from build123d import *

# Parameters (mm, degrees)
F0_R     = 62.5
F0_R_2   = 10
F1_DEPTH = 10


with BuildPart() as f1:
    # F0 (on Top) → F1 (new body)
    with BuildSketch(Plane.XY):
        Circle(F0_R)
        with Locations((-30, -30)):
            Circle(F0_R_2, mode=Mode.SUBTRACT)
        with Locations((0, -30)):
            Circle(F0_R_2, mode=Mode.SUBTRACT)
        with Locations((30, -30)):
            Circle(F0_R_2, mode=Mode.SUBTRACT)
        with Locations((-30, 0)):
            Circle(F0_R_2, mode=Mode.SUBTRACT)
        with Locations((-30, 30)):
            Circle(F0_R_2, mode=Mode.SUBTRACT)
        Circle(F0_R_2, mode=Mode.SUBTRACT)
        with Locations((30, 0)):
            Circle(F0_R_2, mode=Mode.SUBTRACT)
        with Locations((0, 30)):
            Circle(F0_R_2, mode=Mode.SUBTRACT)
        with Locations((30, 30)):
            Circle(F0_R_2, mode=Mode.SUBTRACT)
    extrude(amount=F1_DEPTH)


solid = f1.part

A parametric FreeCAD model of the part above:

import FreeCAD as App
import Part
import Sketcher
from FreeCAD import Vector
Q = App.Units.Quantity

doc = App.newDocument("Part")
body = doc.addObject("PartDesign::Body", "Body")

sketch1 = body.newObject("Sketcher::SketchObject", "Sketch")
sketch1.AttachmentSupport = (doc.getObject("XY_Plane"), [""])
sketch1.MapMode = "FlatFace"
sketch1.addGeometry(Part.Circle(Vector(0, 0, 0), Vector(0, 0, 1), 62), False)
sketch1.addGeometry(Part.Circle(Vector(-30, -30, 0), Vector(0, 0, 1), 10), False)
sketch1.addGeometry(Part.Circle(Vector(0, -30, 0), Vector(0, 0, 1), 10), False)
sketch1.addGeometry(Part.Circle(Vector(30, -30, 0), Vector(0, 0, 1), 10), False)
sketch1.addGeometry(Part.Circle(Vector(-30, 0, 0), Vector(0, 0, 1), 10), False)
sketch1.addGeometry(Part.Circle(Vector(-30, 30, 0), Vector(0, 0, 1), 10), False)
sketch1.addGeometry(Part.Circle(Vector(0, 0, 0), Vector(0, 0, 1), 10), False)
sketch1.addGeometry(Part.Circle(Vector(30, 0, 0), Vector(0, 0, 1), 10), False)
sketch1.addGeometry(Part.Circle(Vector(0, 30, 0), Vector(0, 0, 1), 10), False)
sketch1.addGeometry(Part.Circle(Vector(30, 30, 0), Vector(0, 0, 1), 10), False)
sketch1.addConstraint(Sketcher.Constraint("Coincident", 0, 3, -1, 1))
sketch1.addConstraint(Sketcher.Constraint("Coincident", 6, 3, -1, 1))
sketch1.addConstraint(Sketcher.Constraint("Equal", 1, 2))
sketch1.addConstraint(Sketcher.Constraint("Equal", 2, 3))
sketch1.addConstraint(Sketcher.Constraint("Equal", 3, 4))
sketch1.addConstraint(Sketcher.Constraint("Equal", 4, 5))
sketch1.addConstraint(Sketcher.Constraint("Equal", 5, 6))
sketch1.addConstraint(Sketcher.Constraint("Equal", 6, 7))
sketch1.addConstraint(Sketcher.Constraint("Equal", 7, 8))
sketch1.addConstraint(Sketcher.Constraint("Equal", 8, 9))
sketch1.addConstraint(Sketcher.Constraint("Symmetric", 3, 3, 5, 3, -1, 1))
sketch1.addConstraint(Sketcher.Constraint("Symmetric", 4, 3, 7, 3, -1, 1))
sketch1.addConstraint(Sketcher.Constraint("Symmetric", 2, 3, 8, 3, -1, 1))
sketch1.addConstraint(Sketcher.Constraint("Symmetric", 1, 3, 9, 3, -1, 1))
sketch1.addConstraint(Sketcher.Constraint("Symmetric", 1, 3, 3, 3, -2))
sketch1.addConstraint(Sketcher.Constraint("PointOnObject", 2, 3, -2))
sketch1.addConstraint(Sketcher.Constraint("PointOnObject", 4, 3, -1))
sketch1.addConstraint(Sketcher.Constraint("Horizontal", 1, 3, 2, 3))
sketch1.addConstraint(Sketcher.Constraint("Vertical", 1, 3, 4, 3))
sketch1.addConstraint(Sketcher.Constraint("Diameter", 0, Q("125 mm")))
sketch1.addConstraint(Sketcher.Constraint("Diameter", 1, Q("20 mm")))
sketch1.addConstraint(Sketcher.Constraint("DistanceX", 1, 3, -1, 1, Q("30 mm")))
sketch1.addConstraint(Sketcher.Constraint("DistanceY", 1, 3, -1, 1, Q("30 mm")))
pad1 = body.newObject("PartDesign::Pad", "Pad")
pad1.Profile = sketch1
pad1.Length = 10

doc.recompute()
